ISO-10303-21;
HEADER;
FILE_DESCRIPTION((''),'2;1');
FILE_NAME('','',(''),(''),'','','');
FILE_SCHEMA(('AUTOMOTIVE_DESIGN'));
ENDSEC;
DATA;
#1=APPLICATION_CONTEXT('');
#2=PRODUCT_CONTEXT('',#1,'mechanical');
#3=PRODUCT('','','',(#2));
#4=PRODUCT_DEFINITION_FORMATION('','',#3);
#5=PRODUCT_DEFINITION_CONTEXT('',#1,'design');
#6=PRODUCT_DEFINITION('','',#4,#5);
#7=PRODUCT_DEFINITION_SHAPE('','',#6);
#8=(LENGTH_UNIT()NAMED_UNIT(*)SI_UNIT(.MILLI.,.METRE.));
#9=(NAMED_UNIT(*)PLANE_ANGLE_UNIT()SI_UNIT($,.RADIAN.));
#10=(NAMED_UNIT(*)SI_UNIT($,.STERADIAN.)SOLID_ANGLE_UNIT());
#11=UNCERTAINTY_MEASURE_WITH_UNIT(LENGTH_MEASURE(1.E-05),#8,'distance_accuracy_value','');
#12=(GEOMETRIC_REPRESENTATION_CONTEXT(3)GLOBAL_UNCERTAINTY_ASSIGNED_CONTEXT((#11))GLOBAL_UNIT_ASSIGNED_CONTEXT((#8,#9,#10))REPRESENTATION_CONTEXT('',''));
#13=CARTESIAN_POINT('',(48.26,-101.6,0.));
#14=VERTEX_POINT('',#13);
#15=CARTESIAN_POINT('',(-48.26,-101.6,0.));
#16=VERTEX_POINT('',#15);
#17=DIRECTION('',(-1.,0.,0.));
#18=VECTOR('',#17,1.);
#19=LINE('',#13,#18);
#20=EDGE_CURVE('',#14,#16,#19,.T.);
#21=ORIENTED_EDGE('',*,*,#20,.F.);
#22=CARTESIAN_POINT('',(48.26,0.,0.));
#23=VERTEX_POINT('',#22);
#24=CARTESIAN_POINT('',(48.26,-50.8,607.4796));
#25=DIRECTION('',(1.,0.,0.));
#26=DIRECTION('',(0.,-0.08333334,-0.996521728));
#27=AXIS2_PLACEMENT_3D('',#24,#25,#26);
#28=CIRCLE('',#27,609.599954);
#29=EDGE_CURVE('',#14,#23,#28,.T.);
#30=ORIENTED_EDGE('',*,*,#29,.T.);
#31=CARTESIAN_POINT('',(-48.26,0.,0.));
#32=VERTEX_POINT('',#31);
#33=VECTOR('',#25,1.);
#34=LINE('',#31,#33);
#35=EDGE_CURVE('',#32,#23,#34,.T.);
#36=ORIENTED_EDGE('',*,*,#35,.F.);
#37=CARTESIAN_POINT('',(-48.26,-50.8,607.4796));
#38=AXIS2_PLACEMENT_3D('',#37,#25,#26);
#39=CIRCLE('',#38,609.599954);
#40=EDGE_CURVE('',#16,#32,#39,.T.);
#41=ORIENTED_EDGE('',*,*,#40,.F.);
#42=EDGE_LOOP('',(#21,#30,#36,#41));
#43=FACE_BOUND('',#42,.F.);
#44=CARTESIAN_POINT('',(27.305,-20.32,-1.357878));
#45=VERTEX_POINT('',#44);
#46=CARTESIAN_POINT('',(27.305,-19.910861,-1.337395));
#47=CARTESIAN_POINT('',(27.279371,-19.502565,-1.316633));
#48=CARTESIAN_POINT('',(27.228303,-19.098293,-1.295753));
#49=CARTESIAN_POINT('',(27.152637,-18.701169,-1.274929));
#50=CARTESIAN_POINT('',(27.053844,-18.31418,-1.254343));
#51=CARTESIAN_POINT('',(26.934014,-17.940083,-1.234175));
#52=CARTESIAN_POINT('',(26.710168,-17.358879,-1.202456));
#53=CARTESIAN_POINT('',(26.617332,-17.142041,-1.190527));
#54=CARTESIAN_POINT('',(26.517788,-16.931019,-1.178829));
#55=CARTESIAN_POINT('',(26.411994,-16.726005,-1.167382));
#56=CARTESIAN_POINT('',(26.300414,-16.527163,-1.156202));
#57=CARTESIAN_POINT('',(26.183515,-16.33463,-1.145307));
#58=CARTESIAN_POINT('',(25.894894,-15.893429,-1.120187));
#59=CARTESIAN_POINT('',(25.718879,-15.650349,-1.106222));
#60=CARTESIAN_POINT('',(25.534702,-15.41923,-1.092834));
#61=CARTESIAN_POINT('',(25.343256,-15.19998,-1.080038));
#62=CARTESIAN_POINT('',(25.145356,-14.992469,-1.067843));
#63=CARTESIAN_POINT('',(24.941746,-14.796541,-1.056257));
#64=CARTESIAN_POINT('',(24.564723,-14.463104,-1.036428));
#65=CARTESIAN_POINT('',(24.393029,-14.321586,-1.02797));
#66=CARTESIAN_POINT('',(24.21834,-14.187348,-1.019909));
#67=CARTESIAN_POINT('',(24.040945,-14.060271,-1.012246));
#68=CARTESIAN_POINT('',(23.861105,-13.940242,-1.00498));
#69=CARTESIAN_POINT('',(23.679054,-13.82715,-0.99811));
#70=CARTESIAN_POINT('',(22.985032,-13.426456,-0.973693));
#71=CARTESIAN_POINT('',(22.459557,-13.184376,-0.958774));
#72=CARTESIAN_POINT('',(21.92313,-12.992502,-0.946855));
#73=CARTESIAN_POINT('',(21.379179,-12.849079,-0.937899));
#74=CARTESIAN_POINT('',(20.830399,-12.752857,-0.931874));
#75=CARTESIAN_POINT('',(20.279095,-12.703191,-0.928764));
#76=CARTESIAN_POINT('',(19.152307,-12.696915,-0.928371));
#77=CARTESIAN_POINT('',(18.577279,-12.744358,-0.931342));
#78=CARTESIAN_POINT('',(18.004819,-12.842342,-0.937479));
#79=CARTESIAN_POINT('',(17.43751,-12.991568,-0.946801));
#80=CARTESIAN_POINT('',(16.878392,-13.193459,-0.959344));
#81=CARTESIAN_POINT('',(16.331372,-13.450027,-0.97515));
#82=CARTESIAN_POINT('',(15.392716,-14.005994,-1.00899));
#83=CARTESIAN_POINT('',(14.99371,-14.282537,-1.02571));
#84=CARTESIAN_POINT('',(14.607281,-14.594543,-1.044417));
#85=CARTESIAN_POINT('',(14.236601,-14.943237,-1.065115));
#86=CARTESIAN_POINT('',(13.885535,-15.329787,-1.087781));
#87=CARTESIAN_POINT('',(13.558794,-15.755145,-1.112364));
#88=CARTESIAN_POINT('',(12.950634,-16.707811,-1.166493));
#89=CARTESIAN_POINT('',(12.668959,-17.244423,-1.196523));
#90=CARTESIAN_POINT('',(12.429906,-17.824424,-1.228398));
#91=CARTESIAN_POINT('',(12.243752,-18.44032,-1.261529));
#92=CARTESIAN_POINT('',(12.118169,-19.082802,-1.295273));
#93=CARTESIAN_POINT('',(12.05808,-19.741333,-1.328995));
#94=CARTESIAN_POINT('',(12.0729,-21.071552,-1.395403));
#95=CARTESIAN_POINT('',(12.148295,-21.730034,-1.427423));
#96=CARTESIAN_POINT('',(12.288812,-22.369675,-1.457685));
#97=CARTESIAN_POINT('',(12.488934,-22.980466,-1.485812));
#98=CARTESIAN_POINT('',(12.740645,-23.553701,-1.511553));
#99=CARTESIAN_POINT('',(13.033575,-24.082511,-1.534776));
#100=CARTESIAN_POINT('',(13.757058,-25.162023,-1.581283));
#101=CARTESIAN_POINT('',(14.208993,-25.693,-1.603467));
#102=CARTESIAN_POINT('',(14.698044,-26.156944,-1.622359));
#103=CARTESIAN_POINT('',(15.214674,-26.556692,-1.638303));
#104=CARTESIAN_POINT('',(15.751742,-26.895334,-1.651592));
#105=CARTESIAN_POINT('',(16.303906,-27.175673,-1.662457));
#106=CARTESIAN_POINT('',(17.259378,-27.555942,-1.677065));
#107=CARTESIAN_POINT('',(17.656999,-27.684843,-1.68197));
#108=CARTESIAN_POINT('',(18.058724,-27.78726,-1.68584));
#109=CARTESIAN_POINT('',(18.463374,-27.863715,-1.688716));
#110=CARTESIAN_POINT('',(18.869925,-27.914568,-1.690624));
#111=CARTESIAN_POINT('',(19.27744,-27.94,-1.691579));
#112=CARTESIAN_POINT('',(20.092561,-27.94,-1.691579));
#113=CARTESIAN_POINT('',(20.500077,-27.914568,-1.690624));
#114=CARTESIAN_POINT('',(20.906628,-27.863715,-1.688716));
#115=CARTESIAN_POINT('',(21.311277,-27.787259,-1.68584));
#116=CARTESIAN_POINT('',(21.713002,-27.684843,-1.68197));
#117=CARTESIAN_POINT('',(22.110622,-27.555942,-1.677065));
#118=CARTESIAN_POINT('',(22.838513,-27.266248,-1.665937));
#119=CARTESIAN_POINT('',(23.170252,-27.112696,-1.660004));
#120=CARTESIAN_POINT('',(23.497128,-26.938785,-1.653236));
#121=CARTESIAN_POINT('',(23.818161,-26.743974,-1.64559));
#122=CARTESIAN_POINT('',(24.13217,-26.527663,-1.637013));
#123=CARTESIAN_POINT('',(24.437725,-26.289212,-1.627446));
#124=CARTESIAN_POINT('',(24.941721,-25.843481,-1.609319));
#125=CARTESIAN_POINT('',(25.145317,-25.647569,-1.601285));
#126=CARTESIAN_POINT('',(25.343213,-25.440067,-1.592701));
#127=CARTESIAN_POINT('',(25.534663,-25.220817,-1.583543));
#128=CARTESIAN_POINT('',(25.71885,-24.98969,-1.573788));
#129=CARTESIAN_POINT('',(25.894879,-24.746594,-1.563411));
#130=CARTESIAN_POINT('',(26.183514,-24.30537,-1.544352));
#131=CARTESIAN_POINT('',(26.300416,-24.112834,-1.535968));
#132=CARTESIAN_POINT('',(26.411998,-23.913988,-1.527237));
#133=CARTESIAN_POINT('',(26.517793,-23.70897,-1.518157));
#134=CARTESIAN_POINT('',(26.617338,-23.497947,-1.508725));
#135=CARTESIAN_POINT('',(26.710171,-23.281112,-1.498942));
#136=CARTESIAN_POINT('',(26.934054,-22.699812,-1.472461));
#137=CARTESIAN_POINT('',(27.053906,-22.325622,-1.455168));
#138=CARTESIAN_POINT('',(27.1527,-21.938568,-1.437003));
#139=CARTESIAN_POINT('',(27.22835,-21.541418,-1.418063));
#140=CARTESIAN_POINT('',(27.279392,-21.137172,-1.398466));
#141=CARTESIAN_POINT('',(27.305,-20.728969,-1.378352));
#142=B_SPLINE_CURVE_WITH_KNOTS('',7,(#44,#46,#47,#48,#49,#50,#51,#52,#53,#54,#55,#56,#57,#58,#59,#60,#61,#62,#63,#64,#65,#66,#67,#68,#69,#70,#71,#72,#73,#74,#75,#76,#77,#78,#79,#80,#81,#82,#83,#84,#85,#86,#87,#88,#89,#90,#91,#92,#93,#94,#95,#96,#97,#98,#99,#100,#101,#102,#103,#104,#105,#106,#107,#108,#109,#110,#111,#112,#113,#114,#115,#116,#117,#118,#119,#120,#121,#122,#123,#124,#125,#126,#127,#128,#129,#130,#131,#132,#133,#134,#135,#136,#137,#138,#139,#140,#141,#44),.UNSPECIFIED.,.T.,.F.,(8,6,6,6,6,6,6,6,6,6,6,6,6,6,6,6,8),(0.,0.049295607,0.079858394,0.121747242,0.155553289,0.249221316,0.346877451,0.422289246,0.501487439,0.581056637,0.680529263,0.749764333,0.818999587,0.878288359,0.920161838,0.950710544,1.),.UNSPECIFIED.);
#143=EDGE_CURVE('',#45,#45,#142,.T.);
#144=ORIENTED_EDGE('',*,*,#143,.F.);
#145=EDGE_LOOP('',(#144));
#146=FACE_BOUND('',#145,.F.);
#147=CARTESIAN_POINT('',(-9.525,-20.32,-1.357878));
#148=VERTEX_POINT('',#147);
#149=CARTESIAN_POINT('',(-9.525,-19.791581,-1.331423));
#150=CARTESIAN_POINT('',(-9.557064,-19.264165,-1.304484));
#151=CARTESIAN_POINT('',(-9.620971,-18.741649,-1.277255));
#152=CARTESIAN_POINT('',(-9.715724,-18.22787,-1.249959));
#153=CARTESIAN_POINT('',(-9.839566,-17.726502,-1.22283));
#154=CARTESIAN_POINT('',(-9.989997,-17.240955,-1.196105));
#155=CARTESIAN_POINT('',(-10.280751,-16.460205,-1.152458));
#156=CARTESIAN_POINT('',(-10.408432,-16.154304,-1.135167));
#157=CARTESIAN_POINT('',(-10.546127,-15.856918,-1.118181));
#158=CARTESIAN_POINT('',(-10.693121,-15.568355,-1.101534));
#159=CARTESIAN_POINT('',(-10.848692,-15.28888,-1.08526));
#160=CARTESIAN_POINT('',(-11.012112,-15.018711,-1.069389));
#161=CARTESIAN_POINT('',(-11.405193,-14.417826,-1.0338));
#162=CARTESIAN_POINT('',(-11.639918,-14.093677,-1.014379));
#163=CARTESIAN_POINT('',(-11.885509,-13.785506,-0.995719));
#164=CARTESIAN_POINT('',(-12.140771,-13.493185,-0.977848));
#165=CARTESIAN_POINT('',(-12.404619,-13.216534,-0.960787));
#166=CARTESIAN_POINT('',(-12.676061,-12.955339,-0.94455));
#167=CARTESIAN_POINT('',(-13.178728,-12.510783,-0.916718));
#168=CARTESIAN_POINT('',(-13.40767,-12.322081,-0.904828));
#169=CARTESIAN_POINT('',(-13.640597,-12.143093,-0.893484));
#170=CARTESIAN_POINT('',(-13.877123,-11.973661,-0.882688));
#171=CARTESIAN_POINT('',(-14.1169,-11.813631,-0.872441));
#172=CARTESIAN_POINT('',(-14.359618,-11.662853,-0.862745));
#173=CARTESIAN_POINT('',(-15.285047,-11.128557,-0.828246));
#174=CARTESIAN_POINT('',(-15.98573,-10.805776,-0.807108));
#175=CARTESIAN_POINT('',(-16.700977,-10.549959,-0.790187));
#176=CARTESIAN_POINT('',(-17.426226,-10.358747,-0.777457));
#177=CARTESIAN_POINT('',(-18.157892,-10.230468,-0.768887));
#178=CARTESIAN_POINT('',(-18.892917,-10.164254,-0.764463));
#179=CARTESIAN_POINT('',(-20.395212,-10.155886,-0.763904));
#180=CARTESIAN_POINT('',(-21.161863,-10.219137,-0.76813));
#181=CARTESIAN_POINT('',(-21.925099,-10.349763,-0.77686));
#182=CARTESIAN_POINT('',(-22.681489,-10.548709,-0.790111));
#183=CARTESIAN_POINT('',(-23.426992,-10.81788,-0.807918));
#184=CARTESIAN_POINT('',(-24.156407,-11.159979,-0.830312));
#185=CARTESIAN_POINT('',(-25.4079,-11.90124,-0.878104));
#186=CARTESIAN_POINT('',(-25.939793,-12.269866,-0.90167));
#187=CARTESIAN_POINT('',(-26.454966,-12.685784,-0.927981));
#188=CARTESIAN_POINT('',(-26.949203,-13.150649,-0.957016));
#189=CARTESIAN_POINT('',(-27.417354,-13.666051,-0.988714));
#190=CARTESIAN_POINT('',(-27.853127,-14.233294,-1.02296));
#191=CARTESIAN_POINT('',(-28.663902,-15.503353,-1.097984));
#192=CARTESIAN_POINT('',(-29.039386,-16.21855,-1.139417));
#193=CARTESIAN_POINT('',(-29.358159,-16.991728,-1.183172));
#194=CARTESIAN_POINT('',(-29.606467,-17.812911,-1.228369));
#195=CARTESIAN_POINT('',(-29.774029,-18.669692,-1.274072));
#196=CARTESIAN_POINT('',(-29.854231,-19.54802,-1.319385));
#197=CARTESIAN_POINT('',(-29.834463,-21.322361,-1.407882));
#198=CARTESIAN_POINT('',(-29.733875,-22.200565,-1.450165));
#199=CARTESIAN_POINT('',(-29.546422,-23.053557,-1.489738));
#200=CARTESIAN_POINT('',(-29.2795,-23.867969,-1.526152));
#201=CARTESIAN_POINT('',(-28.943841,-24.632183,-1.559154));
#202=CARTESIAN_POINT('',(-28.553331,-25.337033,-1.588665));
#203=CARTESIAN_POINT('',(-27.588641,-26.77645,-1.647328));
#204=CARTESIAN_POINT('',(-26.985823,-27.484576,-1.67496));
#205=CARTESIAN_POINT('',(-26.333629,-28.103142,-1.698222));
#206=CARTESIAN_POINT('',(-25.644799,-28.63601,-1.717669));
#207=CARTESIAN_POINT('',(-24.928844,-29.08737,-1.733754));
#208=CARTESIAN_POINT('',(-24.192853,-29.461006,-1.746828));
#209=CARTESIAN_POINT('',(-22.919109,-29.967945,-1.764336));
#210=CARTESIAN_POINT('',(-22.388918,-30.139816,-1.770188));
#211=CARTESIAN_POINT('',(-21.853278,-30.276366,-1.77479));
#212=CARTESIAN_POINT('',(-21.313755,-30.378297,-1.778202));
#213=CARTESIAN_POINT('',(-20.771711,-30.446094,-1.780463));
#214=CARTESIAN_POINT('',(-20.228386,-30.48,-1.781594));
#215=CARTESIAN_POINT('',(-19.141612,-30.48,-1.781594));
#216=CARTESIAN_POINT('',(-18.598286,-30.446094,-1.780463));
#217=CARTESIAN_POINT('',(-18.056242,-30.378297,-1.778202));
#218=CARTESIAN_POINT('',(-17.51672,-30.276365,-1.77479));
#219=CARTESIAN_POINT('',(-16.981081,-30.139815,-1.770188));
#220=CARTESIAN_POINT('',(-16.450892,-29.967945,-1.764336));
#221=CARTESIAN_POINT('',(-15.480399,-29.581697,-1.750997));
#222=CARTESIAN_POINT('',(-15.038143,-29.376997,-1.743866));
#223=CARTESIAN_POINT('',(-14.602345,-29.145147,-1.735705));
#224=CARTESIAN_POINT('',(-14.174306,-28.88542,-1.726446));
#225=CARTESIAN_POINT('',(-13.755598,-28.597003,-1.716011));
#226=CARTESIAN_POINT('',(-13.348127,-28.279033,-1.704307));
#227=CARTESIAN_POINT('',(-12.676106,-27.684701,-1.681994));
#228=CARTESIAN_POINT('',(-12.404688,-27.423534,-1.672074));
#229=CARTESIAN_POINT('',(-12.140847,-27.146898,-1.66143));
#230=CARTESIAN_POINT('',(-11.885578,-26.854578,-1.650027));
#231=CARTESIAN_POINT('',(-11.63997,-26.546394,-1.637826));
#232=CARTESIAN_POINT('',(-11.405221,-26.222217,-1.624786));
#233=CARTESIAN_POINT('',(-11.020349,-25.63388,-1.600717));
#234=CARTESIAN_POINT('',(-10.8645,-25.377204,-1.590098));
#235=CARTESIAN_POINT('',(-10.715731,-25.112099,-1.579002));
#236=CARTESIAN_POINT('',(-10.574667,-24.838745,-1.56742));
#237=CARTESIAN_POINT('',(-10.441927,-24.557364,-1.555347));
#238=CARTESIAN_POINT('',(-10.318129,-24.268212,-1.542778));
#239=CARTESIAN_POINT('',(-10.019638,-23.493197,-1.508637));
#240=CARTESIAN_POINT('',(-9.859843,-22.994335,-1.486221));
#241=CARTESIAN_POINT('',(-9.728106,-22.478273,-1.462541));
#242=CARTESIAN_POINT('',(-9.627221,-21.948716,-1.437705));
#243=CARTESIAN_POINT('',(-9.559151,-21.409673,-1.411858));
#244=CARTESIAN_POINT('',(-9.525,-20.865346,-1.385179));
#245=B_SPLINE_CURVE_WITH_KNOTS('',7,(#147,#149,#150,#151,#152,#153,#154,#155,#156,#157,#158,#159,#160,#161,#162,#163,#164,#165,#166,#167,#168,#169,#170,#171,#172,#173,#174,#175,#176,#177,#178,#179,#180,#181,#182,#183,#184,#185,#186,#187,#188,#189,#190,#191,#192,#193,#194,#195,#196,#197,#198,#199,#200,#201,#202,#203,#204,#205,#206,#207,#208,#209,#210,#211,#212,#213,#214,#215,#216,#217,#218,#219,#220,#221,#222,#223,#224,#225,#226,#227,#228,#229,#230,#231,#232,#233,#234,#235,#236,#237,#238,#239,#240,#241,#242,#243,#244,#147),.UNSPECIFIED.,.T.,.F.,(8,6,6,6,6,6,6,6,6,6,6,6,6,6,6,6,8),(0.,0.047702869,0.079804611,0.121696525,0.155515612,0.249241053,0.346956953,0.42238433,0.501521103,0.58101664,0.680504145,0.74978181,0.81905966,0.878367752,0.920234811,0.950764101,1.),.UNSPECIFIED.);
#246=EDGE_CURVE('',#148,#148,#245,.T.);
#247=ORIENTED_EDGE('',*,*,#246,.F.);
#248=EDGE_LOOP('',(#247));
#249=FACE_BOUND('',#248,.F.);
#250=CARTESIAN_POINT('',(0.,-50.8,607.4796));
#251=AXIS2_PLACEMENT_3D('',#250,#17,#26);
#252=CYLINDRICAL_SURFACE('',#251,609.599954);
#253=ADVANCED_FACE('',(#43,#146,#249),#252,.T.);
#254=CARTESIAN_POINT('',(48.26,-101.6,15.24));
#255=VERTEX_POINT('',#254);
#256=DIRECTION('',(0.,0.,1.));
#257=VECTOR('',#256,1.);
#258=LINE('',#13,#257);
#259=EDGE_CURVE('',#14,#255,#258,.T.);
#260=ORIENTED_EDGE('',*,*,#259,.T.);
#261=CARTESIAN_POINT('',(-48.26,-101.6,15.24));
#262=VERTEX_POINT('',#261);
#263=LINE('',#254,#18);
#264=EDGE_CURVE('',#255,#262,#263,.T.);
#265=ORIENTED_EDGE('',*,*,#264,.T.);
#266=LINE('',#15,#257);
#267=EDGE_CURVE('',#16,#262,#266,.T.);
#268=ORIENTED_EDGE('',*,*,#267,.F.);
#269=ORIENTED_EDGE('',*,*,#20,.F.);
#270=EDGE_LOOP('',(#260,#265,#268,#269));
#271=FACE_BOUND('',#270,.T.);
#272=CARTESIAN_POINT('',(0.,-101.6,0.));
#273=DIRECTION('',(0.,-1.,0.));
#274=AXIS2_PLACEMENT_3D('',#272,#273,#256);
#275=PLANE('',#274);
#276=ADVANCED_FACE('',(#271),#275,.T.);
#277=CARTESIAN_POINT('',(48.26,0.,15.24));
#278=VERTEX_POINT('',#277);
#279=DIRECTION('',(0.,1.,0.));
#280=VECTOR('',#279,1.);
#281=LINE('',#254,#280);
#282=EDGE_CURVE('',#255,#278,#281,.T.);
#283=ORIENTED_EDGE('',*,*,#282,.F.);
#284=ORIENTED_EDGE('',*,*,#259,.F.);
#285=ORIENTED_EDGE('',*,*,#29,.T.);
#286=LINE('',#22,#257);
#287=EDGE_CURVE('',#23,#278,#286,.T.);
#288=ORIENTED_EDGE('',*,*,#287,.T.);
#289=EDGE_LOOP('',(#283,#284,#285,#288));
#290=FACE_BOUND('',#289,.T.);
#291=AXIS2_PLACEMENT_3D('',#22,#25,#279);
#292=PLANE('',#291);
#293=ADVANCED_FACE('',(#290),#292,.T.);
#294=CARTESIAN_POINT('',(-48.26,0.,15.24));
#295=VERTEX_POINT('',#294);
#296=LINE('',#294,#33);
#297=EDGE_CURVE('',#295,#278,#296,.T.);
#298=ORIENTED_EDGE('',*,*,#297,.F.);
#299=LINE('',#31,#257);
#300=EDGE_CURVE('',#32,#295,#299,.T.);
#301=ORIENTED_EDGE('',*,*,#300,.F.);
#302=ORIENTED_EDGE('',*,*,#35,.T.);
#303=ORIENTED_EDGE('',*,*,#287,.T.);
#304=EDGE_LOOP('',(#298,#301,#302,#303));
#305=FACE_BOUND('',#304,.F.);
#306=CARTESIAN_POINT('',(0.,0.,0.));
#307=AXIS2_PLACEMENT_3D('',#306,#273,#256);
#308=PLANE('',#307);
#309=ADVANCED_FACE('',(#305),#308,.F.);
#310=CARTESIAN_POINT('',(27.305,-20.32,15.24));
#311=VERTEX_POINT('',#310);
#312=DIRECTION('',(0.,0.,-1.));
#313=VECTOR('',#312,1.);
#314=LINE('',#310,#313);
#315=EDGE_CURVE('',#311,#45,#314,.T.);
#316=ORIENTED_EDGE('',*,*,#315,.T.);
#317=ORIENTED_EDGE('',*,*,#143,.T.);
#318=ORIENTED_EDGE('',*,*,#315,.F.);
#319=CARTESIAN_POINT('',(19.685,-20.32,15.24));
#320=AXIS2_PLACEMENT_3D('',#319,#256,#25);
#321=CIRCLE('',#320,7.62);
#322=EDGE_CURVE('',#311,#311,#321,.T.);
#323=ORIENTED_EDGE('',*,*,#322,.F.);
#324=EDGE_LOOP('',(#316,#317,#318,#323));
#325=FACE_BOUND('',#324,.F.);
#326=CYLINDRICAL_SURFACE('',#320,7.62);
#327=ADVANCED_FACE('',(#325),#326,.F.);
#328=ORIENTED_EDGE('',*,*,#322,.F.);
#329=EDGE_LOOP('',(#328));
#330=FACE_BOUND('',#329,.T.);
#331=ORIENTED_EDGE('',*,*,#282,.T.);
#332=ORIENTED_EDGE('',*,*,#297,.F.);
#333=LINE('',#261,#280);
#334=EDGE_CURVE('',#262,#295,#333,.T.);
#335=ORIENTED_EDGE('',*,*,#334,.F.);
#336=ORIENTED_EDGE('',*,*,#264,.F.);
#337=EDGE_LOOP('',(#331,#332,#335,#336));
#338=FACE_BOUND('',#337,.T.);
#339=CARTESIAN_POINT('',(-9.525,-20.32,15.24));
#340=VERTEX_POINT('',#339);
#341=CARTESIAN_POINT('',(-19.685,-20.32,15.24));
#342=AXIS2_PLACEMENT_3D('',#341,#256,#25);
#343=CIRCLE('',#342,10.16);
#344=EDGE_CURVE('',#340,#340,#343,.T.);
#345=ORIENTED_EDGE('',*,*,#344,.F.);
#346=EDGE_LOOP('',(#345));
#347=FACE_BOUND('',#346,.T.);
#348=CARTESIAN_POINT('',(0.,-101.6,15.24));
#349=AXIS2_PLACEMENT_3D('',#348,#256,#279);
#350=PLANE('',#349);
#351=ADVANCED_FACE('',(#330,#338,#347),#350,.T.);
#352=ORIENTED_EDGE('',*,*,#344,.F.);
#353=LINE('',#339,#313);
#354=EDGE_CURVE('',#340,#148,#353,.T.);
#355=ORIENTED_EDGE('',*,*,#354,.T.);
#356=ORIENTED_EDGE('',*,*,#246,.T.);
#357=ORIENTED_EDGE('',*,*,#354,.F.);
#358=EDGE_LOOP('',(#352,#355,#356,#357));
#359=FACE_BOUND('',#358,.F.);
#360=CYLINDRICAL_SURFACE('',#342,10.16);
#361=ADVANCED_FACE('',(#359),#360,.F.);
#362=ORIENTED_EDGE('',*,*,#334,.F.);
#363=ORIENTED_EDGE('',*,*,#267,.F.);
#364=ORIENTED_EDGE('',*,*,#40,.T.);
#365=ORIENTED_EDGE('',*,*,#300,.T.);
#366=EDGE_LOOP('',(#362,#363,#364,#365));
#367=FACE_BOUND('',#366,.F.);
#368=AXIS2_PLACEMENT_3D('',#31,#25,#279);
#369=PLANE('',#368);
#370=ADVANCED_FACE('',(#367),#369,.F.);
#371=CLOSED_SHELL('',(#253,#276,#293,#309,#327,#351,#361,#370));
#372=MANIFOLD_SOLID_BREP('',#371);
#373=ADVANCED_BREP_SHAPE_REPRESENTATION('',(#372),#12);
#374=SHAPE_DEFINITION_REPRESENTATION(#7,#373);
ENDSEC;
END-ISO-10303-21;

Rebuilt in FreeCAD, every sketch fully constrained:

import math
import FreeCAD as App
import Part
import Sketcher
Q = App.Units.Quantity

doc = App.newDocument("Part")
body = doc.addObject("PartDesign::Body", "Body")

sketch1 = doc.addObject("Sketcher::SketchObject", "Sketch")
body.addObject(sketch1)
sketch1.AttachmentSupport = (doc.YZ_Plane, [""])
sketch1.MapMode = "FlatFace"
sketch1.addGeometry([
    Part.ArcOfCircle(Part.Circle(App.Vector(-50.8, 607.4796, 0), App.Vector(0, 0, 1), 609.599954), math.radians(-94.780192), math.radians(-85.219808)),
    Part.LineSegment(App.Vector(0, 0, 0), App.Vector(0, 15.24, 0)),
    Part.LineSegment(App.Vector(0, 15.24, 0), App.Vector(-101.6, 15.24, 0)),
    Part.LineSegment(App.Vector(-101.6, 15.24, 0), App.Vector(-101.6, 0, 0)),
], False)
sketch1.addConstraint([
    Sketcher.Constraint("Coincident", 0, 2, 1, 1),
    Sketcher.Constraint("Coincident", 1, 2, 2, 1),
    Sketcher.Constraint("Coincident", 2, 2, 3, 1),
    Sketcher.Constraint("Coincident", 3, 2, 0, 1),
    Sketcher.Constraint("Vertical", 1),
    Sketcher.Constraint("Horizontal", 2),
    Sketcher.Constraint("Vertical", 3),
    Sketcher.Constraint("PointOnObject", 1, 2, -2),
    Sketcher.Constraint("PointOnObject", 3, 2, -1),
    Sketcher.Constraint("Horizontal", 0, 2, 3, 2),
    Sketcher.Constraint("Radius", 0, Q("24 in")),
    Sketcher.Constraint("DistanceX", 2, 2, 2, 1, Q("4 in")),
    Sketcher.Constraint("DistanceY", 1, 1, 1, 2, Q("0.6 in")),
])
pad1 = doc.addObject("PartDesign::Pad", "Pad")
body.addObject(pad1)
pad1.Profile = sketch1
pad1.Length = Q("3.8 in")
pad1.Midplane = True

sketch2 = doc.addObject("Sketcher::SketchObject", "Sketch001")
body.addObject(sketch2)
sketch2.AttachmentSupport = (doc.XY_Plane, [""])
sketch2.MapMode = "FlatFace"
sketch2.AttachmentOffset = App.Placement(App.Vector(0, 0, 0.6 * 25.4), App.Rotation())
sketch2.addGeometry([
    Part.Circle(App.Vector(-19.685, -20.32, 0), App.Vector(0, 0, 1), 10.16),
    Part.Circle(App.Vector(19.685, -20.32, 0), App.Vector(0, 0, 1), 7.62),
], False)
sketch2.addConstraint([
    Sketcher.Constraint("Symmetric", 0, 3, 1, 3, -2),
    Sketcher.Constraint("Diameter", 0, Q("0.8 in")),
    Sketcher.Constraint("Diameter", 1, Q("0.6 in")),
    Sketcher.Constraint("DistanceY", 0, 3, -1, 1, Q("0.8 in")),
    Sketcher.Constraint("DistanceX", 0, 3, -1, 1, Q("0.775 in")),
])
pocket1 = doc.addObject("PartDesign::Pocket", "Pocket")
body.addObject(pocket1)
pocket1.Profile = sketch2
pocket1.Type = "ThroughAll"

doc.recompute()
